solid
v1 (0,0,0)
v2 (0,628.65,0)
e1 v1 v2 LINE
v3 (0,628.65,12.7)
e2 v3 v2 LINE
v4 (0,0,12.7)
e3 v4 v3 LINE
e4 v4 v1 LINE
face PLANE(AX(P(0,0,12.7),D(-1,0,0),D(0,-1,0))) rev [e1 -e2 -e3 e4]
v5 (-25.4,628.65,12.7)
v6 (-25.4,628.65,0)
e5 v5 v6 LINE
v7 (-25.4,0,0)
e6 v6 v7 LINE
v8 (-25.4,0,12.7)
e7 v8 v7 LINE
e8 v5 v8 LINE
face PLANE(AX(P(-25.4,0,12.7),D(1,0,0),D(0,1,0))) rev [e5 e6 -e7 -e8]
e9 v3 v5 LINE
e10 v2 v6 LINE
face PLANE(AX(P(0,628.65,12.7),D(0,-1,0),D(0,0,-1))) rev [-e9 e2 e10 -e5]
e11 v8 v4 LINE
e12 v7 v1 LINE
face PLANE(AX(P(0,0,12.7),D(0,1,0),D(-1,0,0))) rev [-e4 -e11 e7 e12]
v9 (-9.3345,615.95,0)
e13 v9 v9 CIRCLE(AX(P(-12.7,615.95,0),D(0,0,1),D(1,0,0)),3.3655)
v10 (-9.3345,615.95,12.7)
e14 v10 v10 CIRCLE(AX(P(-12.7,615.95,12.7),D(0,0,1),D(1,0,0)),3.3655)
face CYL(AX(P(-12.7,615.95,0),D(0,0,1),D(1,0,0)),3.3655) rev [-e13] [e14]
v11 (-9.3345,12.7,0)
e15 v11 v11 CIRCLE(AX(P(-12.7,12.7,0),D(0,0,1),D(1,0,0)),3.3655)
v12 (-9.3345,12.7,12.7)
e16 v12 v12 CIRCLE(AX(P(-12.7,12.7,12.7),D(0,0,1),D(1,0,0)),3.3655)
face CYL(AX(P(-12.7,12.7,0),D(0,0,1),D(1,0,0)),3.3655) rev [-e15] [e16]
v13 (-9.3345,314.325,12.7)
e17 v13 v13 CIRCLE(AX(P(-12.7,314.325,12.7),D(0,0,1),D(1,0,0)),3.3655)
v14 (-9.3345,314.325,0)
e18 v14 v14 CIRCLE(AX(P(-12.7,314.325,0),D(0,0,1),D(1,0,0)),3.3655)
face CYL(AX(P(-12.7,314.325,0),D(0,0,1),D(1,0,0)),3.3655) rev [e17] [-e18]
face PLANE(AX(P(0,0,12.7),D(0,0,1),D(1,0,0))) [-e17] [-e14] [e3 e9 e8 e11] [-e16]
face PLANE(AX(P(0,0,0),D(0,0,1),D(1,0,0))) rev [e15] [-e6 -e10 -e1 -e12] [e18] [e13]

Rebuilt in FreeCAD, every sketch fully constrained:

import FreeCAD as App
import Part
import Sketcher

V = App.Vector
Q = App.Units.Quantity

doc = App.newDocument("Part")
body = doc.addObject("PartDesign::Body", "Body")

# Sketch on XY plane
sketch1 = body.newObject("Sketcher::SketchObject", "Sketch")
sketch1.AttachmentSupport = (doc.getObject("XY_Plane"), [""])
sketch1.MapMode = "FlatFace"
sketch1.addGeometry([
    Part.LineSegment(V(-25, 629, 0), V(-25, 0, 0)),
    Part.LineSegment(V(-25, 0, 0), V(0, 0, 0)),
    Part.LineSegment(V(0, 0, 0), V(0, 629, 0)),
    Part.LineSegment(V(0, 629, 0), V(-25, 629, 0)),
], False)
sketch1.addConstraint([
    Sketcher.Constraint("Coincident", 0, 2, 1, 1),
    Sketcher.Constraint("Coincident", 1, 2, 2, 1),
    Sketcher.Constraint("Coincident", 2, 2, 3, 1),
    Sketcher.Constraint("Coincident", 3, 2, 0, 1),
    Sketcher.Constraint("Vertical", 0),
    Sketcher.Constraint("Horizontal", 1),
    Sketcher.Constraint("Vertical", 2),
    Sketcher.Constraint("Horizontal", 3),
    Sketcher.Constraint("Coincident", 1, 2, -1, 1),
    Sketcher.Constraint("DistanceX", 1, 1, 1, 2, Q("1 in")),
    Sketcher.Constraint("DistanceY", 0, 2, 0, 1, Q("24.75 in")),
])
pad1 = body.newObject("PartDesign::Pad", "Pad")
pad1.Profile = sketch1
pad1.Length = Q("0.5 in")

# Sketch on XY plane
sketch2 = body.newObject("Sketcher::SketchObject", "Sketch001")
sketch2.AttachmentSupport = (doc.getObject("XY_Plane"), [""])
sketch2.MapMode = "FlatFace"
sketch2.AttachmentOffset = App.Placement(V(0, 0, 0.5 * 25.4), App.Rotation())
sketch2.addGeometry(Part.Circle(V(-12.7, 12.7, 0), V(0, 0, 1), 3.4), False)
sketch2.addConstraint([
    Sketcher.Constraint("Diameter", 0, Q("0.265 in")),
    Sketcher.Constraint("DistanceX", 0, 3, -1, 1, Q("0.5 in")),
    Sketcher.Constraint("DistanceY", -1, 1, 0, 3, Q("0.5 in")),
])
pocket1 = body.newObject("PartDesign::Pocket", "Pocket")
pocket1.Profile = sketch2
pocket1.Type = "ThroughAll"
doc.recompute()

linearpattern = body.newObject("PartDesign::LinearPattern", "LinearPattern")
linearpattern.Originals = [pocket1]
linearpattern.Direction = (doc.getObject("Y_Axis"), [""])
linearpattern.Mode = "offset"
linearpattern.Offset = Q("11.875 in")
linearpattern.Occurrences = 3
body.Tip = linearpattern

doc.recompute()
